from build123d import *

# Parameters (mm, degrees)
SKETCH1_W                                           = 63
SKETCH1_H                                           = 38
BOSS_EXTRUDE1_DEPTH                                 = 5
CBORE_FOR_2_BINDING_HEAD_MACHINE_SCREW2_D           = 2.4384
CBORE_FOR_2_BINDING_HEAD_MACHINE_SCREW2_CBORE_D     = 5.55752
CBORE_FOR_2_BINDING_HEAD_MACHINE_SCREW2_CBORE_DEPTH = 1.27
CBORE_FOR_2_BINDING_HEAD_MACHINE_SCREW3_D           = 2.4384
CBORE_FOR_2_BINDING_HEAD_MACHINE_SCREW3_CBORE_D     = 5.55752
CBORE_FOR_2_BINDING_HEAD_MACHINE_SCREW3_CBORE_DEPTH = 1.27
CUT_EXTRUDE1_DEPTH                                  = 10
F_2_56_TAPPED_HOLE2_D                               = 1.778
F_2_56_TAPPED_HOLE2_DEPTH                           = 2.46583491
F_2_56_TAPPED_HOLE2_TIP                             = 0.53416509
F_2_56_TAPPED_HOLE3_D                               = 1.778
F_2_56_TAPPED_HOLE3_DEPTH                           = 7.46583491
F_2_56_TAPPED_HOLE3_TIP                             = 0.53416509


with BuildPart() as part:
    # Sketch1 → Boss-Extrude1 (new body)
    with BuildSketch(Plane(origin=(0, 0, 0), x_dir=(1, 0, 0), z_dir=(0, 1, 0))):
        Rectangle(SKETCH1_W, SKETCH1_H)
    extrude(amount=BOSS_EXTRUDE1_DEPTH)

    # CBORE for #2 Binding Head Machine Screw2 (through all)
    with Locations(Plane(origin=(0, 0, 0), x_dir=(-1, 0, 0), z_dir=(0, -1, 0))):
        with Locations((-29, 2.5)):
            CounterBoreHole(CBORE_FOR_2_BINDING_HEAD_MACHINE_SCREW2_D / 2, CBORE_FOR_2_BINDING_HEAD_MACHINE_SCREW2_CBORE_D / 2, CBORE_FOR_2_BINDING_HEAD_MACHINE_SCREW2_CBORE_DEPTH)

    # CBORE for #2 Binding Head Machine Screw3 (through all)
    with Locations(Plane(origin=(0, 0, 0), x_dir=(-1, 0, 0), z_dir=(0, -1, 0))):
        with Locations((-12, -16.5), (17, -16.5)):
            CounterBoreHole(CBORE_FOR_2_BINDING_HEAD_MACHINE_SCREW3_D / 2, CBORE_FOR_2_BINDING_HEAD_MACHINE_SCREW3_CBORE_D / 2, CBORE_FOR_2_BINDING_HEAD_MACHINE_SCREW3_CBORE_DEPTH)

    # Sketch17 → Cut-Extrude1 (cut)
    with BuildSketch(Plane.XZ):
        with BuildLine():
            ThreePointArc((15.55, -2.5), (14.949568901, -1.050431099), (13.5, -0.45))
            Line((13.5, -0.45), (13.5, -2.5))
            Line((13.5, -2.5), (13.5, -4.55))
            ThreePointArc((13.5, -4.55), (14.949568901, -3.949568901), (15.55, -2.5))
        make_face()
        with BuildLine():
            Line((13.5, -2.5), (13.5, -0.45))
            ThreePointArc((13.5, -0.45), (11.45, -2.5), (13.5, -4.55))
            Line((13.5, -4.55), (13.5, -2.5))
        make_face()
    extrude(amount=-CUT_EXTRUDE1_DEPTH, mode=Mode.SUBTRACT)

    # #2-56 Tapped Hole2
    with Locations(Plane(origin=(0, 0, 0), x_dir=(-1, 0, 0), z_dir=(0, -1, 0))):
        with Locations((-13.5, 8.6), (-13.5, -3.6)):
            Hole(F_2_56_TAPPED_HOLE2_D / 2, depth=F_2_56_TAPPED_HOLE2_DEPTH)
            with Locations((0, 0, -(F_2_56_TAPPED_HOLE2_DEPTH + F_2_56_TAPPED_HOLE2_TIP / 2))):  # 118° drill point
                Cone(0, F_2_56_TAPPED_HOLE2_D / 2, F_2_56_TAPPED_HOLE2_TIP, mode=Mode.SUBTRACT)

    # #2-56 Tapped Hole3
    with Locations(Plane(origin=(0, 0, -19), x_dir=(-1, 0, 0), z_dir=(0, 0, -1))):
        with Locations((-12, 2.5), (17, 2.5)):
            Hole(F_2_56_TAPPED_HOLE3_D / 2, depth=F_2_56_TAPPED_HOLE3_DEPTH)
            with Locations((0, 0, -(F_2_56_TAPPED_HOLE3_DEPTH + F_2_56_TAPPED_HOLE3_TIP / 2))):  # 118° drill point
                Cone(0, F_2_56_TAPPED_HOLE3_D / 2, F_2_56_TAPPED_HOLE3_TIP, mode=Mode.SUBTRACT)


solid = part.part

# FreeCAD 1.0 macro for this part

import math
import FreeCAD as App
import Part
import Sketcher

V = App.Vector

doc = App.newDocument("Part")
body = doc.addObject("PartDesign::Body", "Body")

# Sketch on XZ plane
sketch1 = body.newObject("Sketcher::SketchObject", "Sketch")
sketch1.AttachmentSupport = (doc.getObject("XZ_Plane"), [""])
sketch1.MapMode = "FlatFace"
sketch1.addGeometry(Part.LineSegment(V(-32, -19, 0), V(-32, 19, 0)), False)
sketch1.addGeometry(Part.LineSegment(V(-32, 19, 0), V(32, 19, 0)), False)
sketch1.addGeometry(Part.LineSegment(V(32, 19, 0), V(32, -19, 0)), False)
sketch1.addGeometry(Part.LineSegment(V(32, -19, 0), V(-32, -19, 0)), False)
sketch1.addConstraint(Sketcher.Constraint("Coincident", 0, 2, 1, 1))
sketch1.addConstraint(Sketcher.Constraint("Coincident", 1, 2, 2, 1))
sketch1.addConstraint(Sketcher.Constraint("Coincident", 2, 2, 3, 1))
sketch1.addConstraint(Sketcher.Constraint("Coincident", 3, 2, 0, 1))
sketch1.addConstraint(Sketcher.Constraint("Vertical", 0))
sketch1.addConstraint(Sketcher.Constraint("Horizontal", 1))
sketch1.addConstraint(Sketcher.Constraint("Vertical", 2))
sketch1.addConstraint(Sketcher.Constraint("Horizontal", 3))
sketch1.addConstraint(Sketcher.Constraint("Symmetric", 0, 2, 2, 2, -1, 1))
sketch1.addConstraint(Sketcher.Constraint("DistanceX", 1, 1, 1, 2, 63.0))
sketch1.addConstraint(Sketcher.Constraint("DistanceY", 0, 1, 0, 2, 38.0))
pad1 = body.newObject("PartDesign::Pad", "Pad")
pad1.Profile = sketch1
pad1.Length = 5
pad1.Reversed = True

# Sketch on XZ plane
sketch2 = body.newObject("Sketcher::SketchObject", "Sketch001")
sketch2.AttachmentSupport = (doc.getObject("XZ_Plane"), [""])
sketch2.MapMode = "FlatFace"
sketch2.addGeometry(Part.Circle(V(29, -2.5, 0), V(0, 0, 1), 1.2), False)
sketch2.addConstraint(Sketcher.Constraint("DistanceX", -1, 1, 0, 3, 29.0))
sketch2.addConstraint(Sketcher.Constraint("Diameter", 0, 2.4384))
sketch2.addConstraint(Sketcher.Constraint("DistanceY", 0, 3, -1, 1, 2.5))
doc.recompute()
hole = body.newObject("PartDesign::Hole", "Hole")
hole.Profile = sketch2
hole.ThreadType = "None"
hole.Diameter = 2.4384
hole.DepthType = "ThroughAll"
hole.HoleCutType = "Counterbore"
hole.HoleCutDiameter = 5.55752
hole.HoleCutDepth = 1.27

# Sketch on XZ plane
sketch3 = body.newObject("Sketcher::SketchObject", "Sketch002")
sketch3.AttachmentSupport = (doc.getObject("XZ_Plane"), [""])
sketch3.MapMode = "FlatFace"
sketch3.addGeometry(Part.Circle(V(12, 16.5, 0), V(0, 0, 1), 1.2), False)
sketch3.addGeometry(Part.Circle(V(-17, 16.5, 0), V(0, 0, 1), 1.2), False)
sketch3.addConstraint(Sketcher.Constraint("Equal", 0, 1))
sketch3.addConstraint(Sketcher.Constraint("Horizontal", 0, 3, 1, 3))
sketch3.addConstraint(Sketcher.Constraint("DistanceX", -1, 1, 0, 3, 12.0))
sketch3.addConstraint(Sketcher.Constraint("DistanceX", 1, 3, -1, 1, 17.0))
sketch3.addConstraint(Sketcher.Constraint("Diameter", 0, 2.4384))
sketch3.addConstraint(Sketcher.Constraint("DistanceY", -1, 1, 0, 3, 16.5))
doc.recompute()
hole2 = body.newObject("PartDesign::Hole", "Hole001")
hole2.Profile = sketch3
hole2.ThreadType = "None"
hole2.Diameter = 2.4384
hole2.DepthType = "ThroughAll"
hole2.HoleCutType = "Counterbore"
hole2.HoleCutDiameter = 5.55752
hole2.HoleCutDepth = 1.27

# Sketch on XZ plane
sketch4 = body.newObject("Sketcher::SketchObject", "Sketch003")
sketch4.AttachmentSupport = (doc.getObject("XZ_Plane"), [""])
sketch4.MapMode = "FlatFace"
sketch4.addGeometry(Part.ArcOfCircle(Part.Circle(V(13.5, -2.5, 0), V(0, 0, 1), 2.1), math.radians(0), math.radians(90)), False)
sketch4.addGeometry(Part.ArcOfCircle(Part.Circle(V(13.5, -2.5, 0), V(0, 0, 1), 2), math.radians(90), math.radians(270)), False)
sketch4.addGeometry(Part.ArcOfCircle(Part.Circle(V(13.5, -2.5, 0), V(0, 0, 1), 2.1), math.radians(-90), math.radians(0)), False)
sketch4.addConstraint(Sketcher.Constraint("Tangent", 0, 2, 1, 1))
sketch4.addConstraint(Sketcher.Constraint("Tangent", 1, 2, 2, 1))
sketch4.addConstraint(Sketcher.Constraint("Tangent", 2, 2, 0, 1))
sketch4.addConstraint(Sketcher.Constraint("Horizontal", 1, 3, 2, 2))
sketch4.addConstraint(Sketcher.Constraint("Vertical", 2, 3, 0, 2))
sketch4.addConstraint(Sketcher.Constraint("Vertical", 0, 2, 1, 2))
sketch4.addConstraint(Sketcher.Constraint("Radius", 0, 2.05))
sketch4.addConstraint(Sketcher.Constraint("DistanceX", -1, 1, 0, 3, 13.5))
sketch4.addConstraint(Sketcher.Constraint("DistanceY", 0, 3, -1, 1, 2.5))
pocket1 = body.newObject("PartDesign::Pocket", "Pocket")
pocket1.Profile = sketch4
pocket1.Length = 10

# Sketch on XZ plane
sketch5 = body.newObject("Sketcher::SketchObject", "Sketch004")
sketch5.AttachmentSupport = (doc.getObject("XZ_Plane"), [""])
sketch5.MapMode = "FlatFace"
sketch5.addGeometry(Part.Circle(V(13.5, -8.6, 0), V(0, 0, 1), 0.9), False)
sketch5.addGeometry(Part.Circle(V(13.5, 3.6, 0), V(0, 0, 1), 0.9), False)
sketch5.addConstraint(Sketcher.Constraint("Equal", 0, 1))
sketch5.addConstraint(Sketcher.Constraint("Vertical", 0, 3, 1, 3))
sketch5.addConstraint(Sketcher.Constraint("Diameter", 0, 1.778))
sketch5.addConstraint(Sketcher.Constraint("DistanceX", -1, 1, 0, 3, 13.5))
sketch5.addConstraint(Sketcher.Constraint("DistanceY", 0, 3, -1, 1, 8.6))
sketch5.addConstraint(Sketcher.Constraint("DistanceY", -1, 1, 1, 3, 3.6))
doc.recompute()
hole3 = body.newObject("PartDesign::Hole", "Hole002")
hole3.Profile = sketch5
hole3.ThreadType = "None"
hole3.Diameter = 1.778
hole3.DepthType = "Dimension"
hole3.Depth = 2.465835
hole3.DrillPoint = "Angled"
hole3.DrillPointAngle = 118

# Sketch on XY plane
sketch6 = body.newObject("Sketcher::SketchObject", "Sketch005")
sketch6.AttachmentSupport = (doc.getObject("XY_Plane"), [""])
sketch6.MapMode = "FlatFace"
sketch6.AttachmentOffset = App.Placement(V(0, 0, -19), App.Rotation())
sketch6.addGeometry(Part.Circle(V(12, 2.5, 0), V(0, 0, 1), 0.9), False)
sketch6.addGeometry(Part.Circle(V(-17, 2.5, 0), V(0, 0, 1), 0.9), False)
sketch6.addConstraint(Sketcher.Constraint("Equal", 0, 1))
sketch6.addConstraint(Sketcher.Constraint("Horizontal", 0, 3, 1, 3))
sketch6.addConstraint(Sketcher.Constraint("Diameter", 0, 1.778))
sketch6.addConstraint(Sketcher.Constraint("DistanceX", -1, 1, 0, 3, 12.0))
sketch6.addConstraint(Sketcher.Constraint("DistanceX", 1, 3, -1, 1, 17.0))
sketch6.addConstraint(Sketcher.Constraint("DistanceY", -1, 1, 0, 3, 2.5))
doc.recompute()
hole4 = body.newObject("PartDesign::Hole", "Hole003")
hole4.Profile = sketch6
hole4.ThreadType = "None"
hole4.Diameter = 1.778
hole4.DepthType = "Dimension"
hole4.Depth = 7.465835
hole4.DrillPoint = "Angled"
hole4.DrillPointAngle = 118
hole4.Reversed = True

doc.recompute()
